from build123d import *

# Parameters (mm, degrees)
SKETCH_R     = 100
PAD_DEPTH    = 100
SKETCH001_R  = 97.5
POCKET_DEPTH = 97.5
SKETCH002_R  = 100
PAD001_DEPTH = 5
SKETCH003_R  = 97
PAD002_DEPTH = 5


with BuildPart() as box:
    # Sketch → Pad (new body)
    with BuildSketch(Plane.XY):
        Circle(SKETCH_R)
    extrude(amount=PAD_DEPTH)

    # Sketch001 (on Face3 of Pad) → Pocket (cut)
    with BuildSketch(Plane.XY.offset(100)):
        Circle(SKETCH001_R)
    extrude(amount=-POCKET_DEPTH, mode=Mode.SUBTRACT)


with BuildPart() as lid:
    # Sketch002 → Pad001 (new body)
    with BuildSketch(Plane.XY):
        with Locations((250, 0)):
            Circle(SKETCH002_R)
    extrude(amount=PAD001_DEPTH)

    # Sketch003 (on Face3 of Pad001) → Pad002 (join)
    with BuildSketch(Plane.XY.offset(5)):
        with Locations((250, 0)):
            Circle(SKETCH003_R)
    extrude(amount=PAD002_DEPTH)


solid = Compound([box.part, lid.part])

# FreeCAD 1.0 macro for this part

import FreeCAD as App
import Part
import Sketcher
from FreeCAD import Vector

doc = App.newDocument("Part")
params = doc.addObject("Spreadsheet::Sheet", "Params")
for row, (alias, value) in enumerate([
    ("sketch1_diameter", "200 mm"),
    ("pad1_length", "100 mm"),
    ("sketch2_diameter", "195 mm"),
    ("pocket1_length", "97.5 mm"),
    ("sketch3_diameter", "200 mm"),
    ("pad2_length", "5 mm"),
    ("sketch4_diameter", "194 mm"),
    ("pad3_length", "5 mm"),
], start=1):
    params.set(f"A{row}", alias)
    params.set(f"B{row}", "=" + value)
    params.setAlias(f"B{row}", alias)

body = doc.addObject("PartDesign::Body", "Body")

sketch1 = body.newObject("Sketcher::SketchObject", "Sketch")
sketch1.AttachmentSupport = (doc.getObject("XY_Plane"), [""])
sketch1.MapMode = "FlatFace"
sketch1.addGeometry(Part.Circle(Vector(0, 0, 0), Vector(0, 0, 1), 100), False)
sketch1.addConstraint(Sketcher.Constraint("Coincident", 0, 3, -1, 1))
sketch1.addConstraint(Sketcher.Constraint("Diameter", 0, 200.0))
sketch1.setExpression("Constraints[1]", "Params.sketch1_diameter")
pad1 = body.newObject("PartDesign::Pad", "Pad")
pad1.Profile = sketch1
pad1.setExpression("Length", "Params.pad1_length")

sketch2 = body.newObject("Sketcher::SketchObject", "Sketch001")
sketch2.AttachmentSupport = (doc.getObject("XY_Plane"), [""])
sketch2.MapMode = "FlatFace"
sketch2.AttachmentOffset = App.Placement(Vector(0, 0, 100), App.Rotation())
sketch2.addGeometry(Part.Circle(Vector(0, 0, 0), Vector(0, 0, 1), 98), False)
sketch2.addConstraint(Sketcher.Constraint("Coincident", 0, 3, -1, 1))
sketch2.addConstraint(Sketcher.Constraint("Diameter", 0, 195.0))
sketch2.setExpression("Constraints[1]", "Params.sketch2_diameter")
pocket1 = body.newObject("PartDesign::Pocket", "Pocket")
pocket1.Profile = sketch2
pocket1.setExpression("Length", "Params.pocket1_length")
body2 = doc.addObject("PartDesign::Body", "Body001")

sketch3 = body2.newObject("Sketcher::SketchObject", "Sketch002")
sketch3.AttachmentSupport = (doc.getObject("XY_Plane001"), [""])
sketch3.MapMode = "FlatFace"
sketch3.addGeometry(Part.Circle(Vector(250, 0, 0), Vector(0, 0, 1), 100), False)
sketch3.addConstraint(Sketcher.Constraint("PointOnObject", 0, 3, -1))
sketch3.addConstraint(Sketcher.Constraint("Diameter", 0, 200.0))
sketch3.addConstraint(Sketcher.Constraint("DistanceX", -1, 1, 0, 3, 250.0))
sketch3.setExpression("Constraints[1]", "Params.sketch3_diameter")
pad2 = body2.newObject("PartDesign::Pad", "Pad001")
pad2.Profile = sketch3
pad2.setExpression("Length", "Params.pad2_length")

sketch4 = body2.newObject("Sketcher::SketchObject", "Sketch003")
sketch4.AttachmentSupport = (doc.getObject("XY_Plane001"), [""])
sketch4.MapMode = "FlatFace"
sketch4.AttachmentOffset = App.Placement(Vector(0, 0, 5), App.Rotation())
sketch4.addGeometry(Part.Circle(Vector(250, 0, 0), Vector(0, 0, 1), 97), False)
sketch4.addConstraint(Sketcher.Constraint("PointOnObject", 0, 3, -1))
sketch4.addConstraint(Sketcher.Constraint("Diameter", 0, 194.0))
sketch4.addConstraint(Sketcher.Constraint("DistanceX", -1, 1, 0, 3, 250.0))
sketch4.setExpression("Constraints[1]", "Params.sketch4_diameter")
pad3 = body2.newObject("PartDesign::Pad", "Pad002")
pad3.Profile = sketch4
pad3.setExpression("Length", "Params.pad3_length")

doc.recompute()
